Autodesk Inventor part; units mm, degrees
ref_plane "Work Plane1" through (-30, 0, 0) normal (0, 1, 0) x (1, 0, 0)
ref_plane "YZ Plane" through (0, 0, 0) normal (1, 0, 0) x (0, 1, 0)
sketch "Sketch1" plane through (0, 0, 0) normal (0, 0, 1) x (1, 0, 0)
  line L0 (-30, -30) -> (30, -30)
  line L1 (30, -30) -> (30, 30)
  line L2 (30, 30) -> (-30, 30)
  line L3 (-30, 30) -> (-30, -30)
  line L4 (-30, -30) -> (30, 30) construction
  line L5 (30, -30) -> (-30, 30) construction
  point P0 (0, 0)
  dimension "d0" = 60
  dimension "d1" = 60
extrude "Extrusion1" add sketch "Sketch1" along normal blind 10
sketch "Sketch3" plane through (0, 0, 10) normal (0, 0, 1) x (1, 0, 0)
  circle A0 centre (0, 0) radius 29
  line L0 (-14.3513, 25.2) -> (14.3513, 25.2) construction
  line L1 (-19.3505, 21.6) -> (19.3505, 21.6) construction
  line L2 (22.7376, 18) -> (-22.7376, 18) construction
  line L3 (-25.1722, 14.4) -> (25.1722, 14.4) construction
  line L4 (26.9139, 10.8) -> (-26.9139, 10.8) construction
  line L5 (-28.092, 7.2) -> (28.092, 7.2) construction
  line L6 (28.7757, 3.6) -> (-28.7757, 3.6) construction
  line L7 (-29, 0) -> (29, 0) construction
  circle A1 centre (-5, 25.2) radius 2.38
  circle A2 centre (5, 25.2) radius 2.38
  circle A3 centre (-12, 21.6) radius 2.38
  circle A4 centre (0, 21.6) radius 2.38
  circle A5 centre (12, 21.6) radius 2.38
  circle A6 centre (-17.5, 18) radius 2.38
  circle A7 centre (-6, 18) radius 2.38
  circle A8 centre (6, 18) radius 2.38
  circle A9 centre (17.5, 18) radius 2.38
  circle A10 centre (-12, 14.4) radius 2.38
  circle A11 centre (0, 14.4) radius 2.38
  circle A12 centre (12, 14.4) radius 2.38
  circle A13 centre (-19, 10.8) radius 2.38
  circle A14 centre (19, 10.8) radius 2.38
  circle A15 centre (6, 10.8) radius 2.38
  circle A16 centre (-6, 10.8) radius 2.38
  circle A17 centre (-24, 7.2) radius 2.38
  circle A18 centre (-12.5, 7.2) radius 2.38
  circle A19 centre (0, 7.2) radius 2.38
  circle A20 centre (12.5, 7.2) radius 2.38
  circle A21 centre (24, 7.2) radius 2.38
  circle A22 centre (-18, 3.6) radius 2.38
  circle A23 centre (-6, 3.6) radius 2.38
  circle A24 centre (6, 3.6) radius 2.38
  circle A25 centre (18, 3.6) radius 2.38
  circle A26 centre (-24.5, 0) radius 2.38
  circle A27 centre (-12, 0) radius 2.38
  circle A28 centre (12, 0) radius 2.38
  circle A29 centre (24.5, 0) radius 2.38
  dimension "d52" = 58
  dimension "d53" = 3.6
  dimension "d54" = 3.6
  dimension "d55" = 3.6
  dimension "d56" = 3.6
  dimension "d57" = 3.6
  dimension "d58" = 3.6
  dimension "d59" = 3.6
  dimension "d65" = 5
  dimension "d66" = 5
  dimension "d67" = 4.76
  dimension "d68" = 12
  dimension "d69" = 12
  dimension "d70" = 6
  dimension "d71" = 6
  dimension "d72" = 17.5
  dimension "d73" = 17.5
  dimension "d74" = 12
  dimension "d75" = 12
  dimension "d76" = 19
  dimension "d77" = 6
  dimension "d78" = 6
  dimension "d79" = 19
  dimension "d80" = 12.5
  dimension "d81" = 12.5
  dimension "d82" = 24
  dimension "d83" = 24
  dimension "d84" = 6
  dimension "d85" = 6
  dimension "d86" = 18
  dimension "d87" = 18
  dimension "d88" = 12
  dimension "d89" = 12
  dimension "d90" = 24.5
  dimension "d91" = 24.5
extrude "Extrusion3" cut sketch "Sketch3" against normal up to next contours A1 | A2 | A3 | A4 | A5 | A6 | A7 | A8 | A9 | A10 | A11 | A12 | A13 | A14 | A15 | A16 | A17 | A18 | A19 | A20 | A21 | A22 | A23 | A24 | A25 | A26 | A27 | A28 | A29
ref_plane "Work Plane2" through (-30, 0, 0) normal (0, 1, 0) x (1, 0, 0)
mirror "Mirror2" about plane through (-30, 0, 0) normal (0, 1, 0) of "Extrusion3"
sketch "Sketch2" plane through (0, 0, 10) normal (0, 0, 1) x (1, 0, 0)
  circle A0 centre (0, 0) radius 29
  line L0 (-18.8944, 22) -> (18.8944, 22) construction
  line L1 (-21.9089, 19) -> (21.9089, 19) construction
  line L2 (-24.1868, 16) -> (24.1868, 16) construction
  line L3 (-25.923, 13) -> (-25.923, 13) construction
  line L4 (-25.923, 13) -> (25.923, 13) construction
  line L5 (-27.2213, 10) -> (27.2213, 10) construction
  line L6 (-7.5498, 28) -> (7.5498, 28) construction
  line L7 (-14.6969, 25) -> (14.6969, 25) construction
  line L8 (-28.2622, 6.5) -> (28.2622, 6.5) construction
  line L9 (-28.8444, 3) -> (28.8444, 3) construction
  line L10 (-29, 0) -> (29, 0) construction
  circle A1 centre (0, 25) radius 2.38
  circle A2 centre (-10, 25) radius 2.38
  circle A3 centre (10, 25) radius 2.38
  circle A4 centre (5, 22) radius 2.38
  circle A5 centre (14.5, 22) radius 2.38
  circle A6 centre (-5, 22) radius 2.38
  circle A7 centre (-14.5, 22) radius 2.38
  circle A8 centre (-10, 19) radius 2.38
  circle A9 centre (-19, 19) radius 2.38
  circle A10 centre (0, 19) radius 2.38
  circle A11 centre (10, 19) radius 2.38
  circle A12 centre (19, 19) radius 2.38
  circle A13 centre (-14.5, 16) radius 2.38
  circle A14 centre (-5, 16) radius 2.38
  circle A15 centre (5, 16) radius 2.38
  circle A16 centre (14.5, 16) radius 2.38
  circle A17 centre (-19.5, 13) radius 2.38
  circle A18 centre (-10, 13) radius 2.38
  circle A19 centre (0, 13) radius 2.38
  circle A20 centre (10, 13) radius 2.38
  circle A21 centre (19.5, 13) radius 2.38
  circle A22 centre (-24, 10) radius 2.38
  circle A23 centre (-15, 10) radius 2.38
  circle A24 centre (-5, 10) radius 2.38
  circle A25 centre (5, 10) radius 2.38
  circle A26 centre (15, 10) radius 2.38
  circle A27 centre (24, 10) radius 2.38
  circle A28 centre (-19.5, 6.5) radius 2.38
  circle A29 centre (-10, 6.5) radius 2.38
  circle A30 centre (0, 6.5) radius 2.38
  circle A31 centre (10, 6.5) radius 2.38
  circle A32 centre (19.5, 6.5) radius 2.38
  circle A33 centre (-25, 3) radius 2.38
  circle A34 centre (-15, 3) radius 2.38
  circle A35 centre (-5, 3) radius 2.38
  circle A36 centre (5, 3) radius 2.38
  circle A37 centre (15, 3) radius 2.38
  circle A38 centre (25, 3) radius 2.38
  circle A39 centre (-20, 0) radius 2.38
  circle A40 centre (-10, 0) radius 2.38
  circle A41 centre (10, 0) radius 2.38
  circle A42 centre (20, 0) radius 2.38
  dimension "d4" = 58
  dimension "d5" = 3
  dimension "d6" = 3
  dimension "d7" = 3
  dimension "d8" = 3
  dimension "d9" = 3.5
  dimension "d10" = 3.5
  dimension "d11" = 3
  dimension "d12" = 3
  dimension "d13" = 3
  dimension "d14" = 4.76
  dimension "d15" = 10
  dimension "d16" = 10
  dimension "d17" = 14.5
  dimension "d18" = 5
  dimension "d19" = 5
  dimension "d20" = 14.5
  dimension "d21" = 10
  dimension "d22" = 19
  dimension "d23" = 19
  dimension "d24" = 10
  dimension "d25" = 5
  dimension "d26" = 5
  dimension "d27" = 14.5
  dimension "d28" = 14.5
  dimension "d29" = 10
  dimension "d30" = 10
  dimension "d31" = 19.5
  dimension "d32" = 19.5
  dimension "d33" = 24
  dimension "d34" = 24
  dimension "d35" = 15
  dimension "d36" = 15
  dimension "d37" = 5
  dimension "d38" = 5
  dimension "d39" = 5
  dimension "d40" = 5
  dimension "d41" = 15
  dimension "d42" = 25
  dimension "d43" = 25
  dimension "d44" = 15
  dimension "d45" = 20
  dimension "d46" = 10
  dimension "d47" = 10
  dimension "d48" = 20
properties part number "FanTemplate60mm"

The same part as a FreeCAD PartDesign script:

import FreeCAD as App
import Part
import Sketcher
from FreeCAD import Vector
Q = App.Units.Quantity


def add_polygon(sketch, points):
    """Adds a closed chain of lines whose ends are joined by coincident constraints."""
    first, n = sketch.GeometryCount, len(points)
    for a, b in zip(points, points[1:] + points[:1]):
        sketch.addGeometry(Part.LineSegment(App.Vector(*a, 0), App.Vector(*b, 0)), False)
    for i in range(n):
        sketch.addConstraint(Sketcher.Constraint("Coincident", first + i, 2, first + (i + 1) % n, 1))

doc = App.newDocument("Part")
body = doc.addObject("PartDesign::Body", "Body")

sketch1 = body.newObject("Sketcher::SketchObject", "Sketch")
sketch1.AttachmentSupport = (doc.getObject("XY_Plane"), [""])
sketch1.MapMode = "FlatFace"
add_polygon(sketch1, [(-30, 30), (-30, -30), (30, -30), (30, 30)])
sketch1.addConstraint(Sketcher.Constraint("Vertical", 0))
sketch1.addConstraint(Sketcher.Constraint("Horizontal", 1))
sketch1.addConstraint(Sketcher.Constraint("Vertical", 2))
sketch1.addConstraint(Sketcher.Constraint("Horizontal", 3))
sketch1.addConstraint(Sketcher.Constraint("Symmetric", 0, 2, 2, 2, -1, 1))
sketch1.addConstraint(Sketcher.Constraint("Equal", 3, 0))
sketch1.addConstraint(Sketcher.Constraint("DistanceX", 1, 1, 1, 2, Q("60 mm")))
pad1 = body.newObject("PartDesign::Pad", "Pad")
pad1.Profile = sketch1
pad1.Length = 10

sketch2 = body.newObject("Sketcher::SketchObject", "Sketch001")
sketch2.AttachmentSupport = (doc.getObject("XY_Plane"), [""])
sketch2.MapMode = "FlatFace"
sketch2.AttachmentOffset = App.Placement(Vector(0, 0, 10), App.Rotation())
sketch2.addGeometry(Part.Circle(Vector(-5, 25.2, 0), Vector(0, 0, 1), 2.4), False)
sketch2.addGeometry(Part.Circle(Vector(5, 25.2, 0), Vector(0, 0, 1), 2.4), False)
sketch2.addGeometry(Part.Circle(Vector(-12, 21.6, 0), Vector(0, 0, 1), 2.4), False)
sketch2.addGeometry(Part.Circle(Vector(0, 21.6, 0), Vector(0, 0, 1), 2.4), False)
sketch2.addGeometry(Part.Circle(Vector(12, 21.6, 0), Vector(0, 0, 1), 2.4), False)
sketch2.addGeometry(Part.Circle(Vector(-17.5, 18, 0), Vector(0, 0, 1), 2.4), False)
sketch2.addGeometry(Part.Circle(Vector(-6, 18, 0), Vector(0, 0, 1), 2.4), False)
sketch2.addGeometry(Part.Circle(Vector(6, 18, 0), Vector(0, 0, 1), 2.4), False)
sketch2.addGeometry(Part.Circle(Vector(17.5, 18, 0), Vector(0, 0, 1), 2.4), False)
sketch2.addGeometry(Part.Circle(Vector(-12, 14.4, 0), Vector(0, 0, 1), 2.4), False)
sketch2.addGeometry(Part.Circle(Vector(0, 14.4, 0), Vector(0, 0, 1), 2.4), False)
sketch2.addGeometry(Part.Circle(Vector(12, 14.4, 0), Vector(0, 0, 1), 2.4), False)
sketch2.addGeometry(Part.Circle(Vector(-19, 10.8, 0), Vector(0, 0, 1), 2.4), False)
sketch2.addGeometry(Part.Circle(Vector(19, 10.8, 0), Vector(0, 0, 1), 2.4), False)
sketch2.addGeometry(Part.Circle(Vector(6, 10.8, 0), Vector(0, 0, 1), 2.4), False)
sketch2.addGeometry(Part.Circle(Vector(-6, 10.8, 0), Vector(0, 0, 1), 2.4), False)
sketch2.addGeometry(Part.Circle(Vector(-24, 7.2, 0), Vector(0, 0, 1), 2.4), False)
sketch2.addGeometry(Part.Circle(Vector(-12.5, 7.2, 0), Vector(0, 0, 1), 2.4), False)
sketch2.addGeometry(Part.Circle(Vector(0, 7.2, 0), Vector(0, 0, 1), 2.4), False)
sketch2.addGeometry(Part.Circle(Vector(12.5, 7.2, 0), Vector(0, 0, 1), 2.4), False)
sketch2.addGeometry(Part.Circle(Vector(24, 7.2, 0), Vector(0, 0, 1), 2.4), False)
sketch2.addGeometry(Part.Circle(Vector(-18, 3.6, 0), Vector(0, 0, 1), 2.4), False)
sketch2.addGeometry(Part.Circle(Vector(-6, 3.6, 0), Vector(0, 0, 1), 2.4), False)
sketch2.addGeometry(Part.Circle(Vector(6, 3.6, 0), Vector(0, 0, 1), 2.4), False)
sketch2.addGeometry(Part.Circle(Vector(18, 3.6, 0), Vector(0, 0, 1), 2.4), False)
sketch2.addGeometry(Part.Circle(Vector(-24.5, 0, 0), Vector(0, 0, 1), 2.4), False)
sketch2.addGeometry(Part.Circle(Vector(-12, 0, 0), Vector(0, 0, 1), 2.4), False)
sketch2.addGeometry(Part.Circle(Vector(12, 0, 0), Vector(0, 0, 1), 2.4), False)
sketch2.addGeometry(Part.Circle(Vector(24.5, 0, 0), Vector(0, 0, 1), 2.4), False)
sketch2.addConstraint(Sketcher.Constraint("Equal", 0, 1))
sketch2.addConstraint(Sketcher.Constraint("Equal", 1, 2))
sketch2.addConstraint(Sketcher.Constraint("Equal", 2, 3))
sketch2.addConstraint(Sketcher.Constraint("Equal", 3, 4))
sketch2.addConstraint(Sketcher.Constraint("Equal", 4, 5))
sketch2.addConstraint(Sketcher.Constraint("Equal", 5, 6))
sketch2.addConstraint(Sketcher.Constraint("Equal", 6, 7))
sketch2.addConstraint(Sketcher.Constraint("Equal", 7, 8))
sketch2.addConstraint(Sketcher.Constraint("Equal", 8, 9))
sketch2.addConstraint(Sketcher.Constraint("Equal", 9, 10))
sketch2.addConstraint(Sketcher.Constraint("Equal", 10, 11))
sketch2.addConstraint(Sketcher.Constraint("Equal", 11, 12))
sketch2.addConstraint(Sketcher.Constraint("Equal", 12, 13))
sketch2.addConstraint(Sketcher.Constraint("Equal", 13, 14))
sketch2.addConstraint(Sketcher.Constraint("Equal", 14, 15))
sketch2.addConstraint(Sketcher.Constraint("Equal", 15, 16))
sketch2.addConstraint(Sketcher.Constraint("Equal", 16, 17))
sketch2.addConstraint(Sketcher.Constraint("Equal", 17, 18))
sketch2.addConstraint(Sketcher.Constraint("Equal", 18, 19))
sketch2.addConstraint(Sketcher.Constraint("Equal", 19, 20))
sketch2.addConstraint(Sketcher.Constraint("Equal", 20, 21))
sketch2.addConstraint(Sketcher.Constraint("Equal", 21, 22))
sketch2.addConstraint(Sketcher.Constraint("Equal", 22, 23))
sketch2.addConstraint(Sketcher.Constraint("Equal", 23, 24))
sketch2.addConstraint(Sketcher.Constraint("Equal", 24, 25))
sketch2.addConstraint(Sketcher.Constraint("Equal", 25, 26))
sketch2.addConstraint(Sketcher.Constraint("Equal", 26, 27))
sketch2.addConstraint(Sketcher.Constraint("Equal", 27, 28))
sketch2.addConstraint(Sketcher.Constraint("Symmetric", 26, 3, 27, 3, -1, 1))
sketch2.addConstraint(Sketcher.Constraint("Symmetric", 25, 3, 28, 3, -1, 1))
sketch2.addConstraint(Sketcher.Constraint("Symmetric", 0, 3, 1, 3, -2))
sketch2.addConstraint(Sketcher.Constraint("Symmetric", 2, 3, 4, 3, -2))
sketch2.addConstraint(Sketcher.Constraint("Symmetric", 6, 3, 7, 3, -2))
sketch2.addConstraint(Sketcher.Constraint("Symmetric", 5, 3, 8, 3, -2))
sketch2.addConstraint(Sketcher.Constraint("Symmetric", 9, 3, 11, 3, -2))
sketch2.addConstraint(Sketcher.Constraint("Symmetric", 12, 3, 13, 3, -2))
sketch2.addConstraint(Sketcher.Constraint("Symmetric", 14, 3, 15, 3, -2))
sketch2.addConstraint(Sketcher.Constraint("Symmetric", 17, 3, 19, 3, -2))
sketch2.addConstraint(Sketcher.Constraint("Symmetric", 16, 3, 20, 3, -2))
sketch2.addConstraint(Sketcher.Constraint("Symmetric", 22, 3, 23, 3, -2))
sketch2.addConstraint(Sketcher.Constraint("Symmetric", 21, 3, 24, 3, -2))
sketch2.addConstraint(Sketcher.Constraint("PointOnObject", 3, 3, -2))
sketch2.addConstraint(Sketcher.Constraint("PointOnObject", 10, 3, -2))
sketch2.addConstraint(Sketcher.Constraint("PointOnObject", 18, 3, -2))
sketch2.addConstraint(Sketcher.Constraint("PointOnObject", 25, 3, -1))
sketch2.addConstraint(Sketcher.Constraint("PointOnObject", 26, 3, -1))
sketch2.addConstraint(Sketcher.Constraint("Horizontal", 2, 3, 3, 3))
sketch2.addConstraint(Sketcher.Constraint("Horizontal", 5, 3, 6, 3))
sketch2.addConstraint(Sketcher.Constraint("Horizontal", 9, 3, 10, 3))
sketch2.addConstraint(Sketcher.Constraint("Horizontal", 13, 3, 14, 3))
sketch2.addConstraint(Sketcher.Constraint("Horizontal", 16, 3, 17, 3))
sketch2.addConstraint(Sketcher.Constraint("Horizontal", 17, 3, 18, 3))
sketch2.addConstraint(Sketcher.Constraint("Horizontal", 21, 3, 22, 3))
sketch2.addConstraint(Sketcher.Constraint("Vertical", 2, 3, 9, 3))
sketch2.addConstraint(Sketcher.Constraint("Vertical", 7, 3, 14, 3))
sketch2.addConstraint(Sketcher.Constraint("Vertical", 15, 3, 22, 3))
sketch2.addConstraint(Sketcher.Constraint("Vertical", 9, 3, 26, 3))
sketch2.addConstraint(Sketcher.Constraint("Diameter", 0, Q("4.76 mm")))
sketch2.addConstraint(Sketcher.Constraint("DistanceX", 0, 3, -1, 1, Q("5 mm")))
sketch2.addConstraint(Sketcher.Constraint("DistanceX", 2, 3, -1, 1, Q("12 mm")))
sketch2.addConstraint(Sketcher.Constraint("DistanceY", -1, 1, 5, 3, Q("18 mm")))
sketch2.addConstraint(Sketcher.Constraint("DistanceX", 6, 3, -1, 1, Q("6 mm")))
sketch2.addConstraint(Sketcher.Constraint("DistanceX", 12, 3, -1, 1, Q("19 mm")))
sketch2.addConstraint(Sketcher.Constraint("DistanceX", 16, 3, -1, 1, Q("24 mm")))
sketch2.addConstraint(Sketcher.Constraint("DistanceX", 21, 3, -1, 1, Q("18 mm")))
sketch2.addConstraint(Sketcher.Constraint("DistanceX", 5, 3, 17, 3, Q("5 mm")))
sketch2.addConstraint(Sketcher.Constraint("DistanceX", 25, 3, 17, 3, Q("12 mm")))
sketch2.addConstraint(Sketcher.Constraint("DistanceX", 5, 3, -1, 1, Q("17.5 mm")))
sketch2.addConstraint(Sketcher.Constraint("DistanceY", -1, 1, 21, 3, Q("3.6 mm")))
sketch2.addConstraint(Sketcher.Constraint("DistanceY", 2, 3, 0, 3, Q("3.6 mm")))
sketch2.addConstraint(Sketcher.Constraint("DistanceY", 5, 3, 2, 3, Q("3.6 mm")))
sketch2.addConstraint(Sketcher.Constraint("DistanceY", 9, 3, 5, 3, Q("3.6 mm")))
sketch2.addConstraint(Sketcher.Constraint("DistanceY", 12, 3, 9, 3, Q("3.6 mm")))
sketch2.addConstraint(Sketcher.Constraint("DistanceY", 16, 3, 12, 3, Q("3.6 mm")))
pocket1 = body.newObject("PartDesign::Pocket", "Pocket")
pocket1.Profile = sketch2
pocket1.Type = "UpToFirst"
doc.recompute()

mirrored = body.newObject("PartDesign::Mirrored", "Mirrored")
mirrored.Originals = [pocket1]
mirrored.MirrorPlane = (doc.getObject("XZ_Plane"), [""])
body.Tip = mirrored

doc.recompute()
